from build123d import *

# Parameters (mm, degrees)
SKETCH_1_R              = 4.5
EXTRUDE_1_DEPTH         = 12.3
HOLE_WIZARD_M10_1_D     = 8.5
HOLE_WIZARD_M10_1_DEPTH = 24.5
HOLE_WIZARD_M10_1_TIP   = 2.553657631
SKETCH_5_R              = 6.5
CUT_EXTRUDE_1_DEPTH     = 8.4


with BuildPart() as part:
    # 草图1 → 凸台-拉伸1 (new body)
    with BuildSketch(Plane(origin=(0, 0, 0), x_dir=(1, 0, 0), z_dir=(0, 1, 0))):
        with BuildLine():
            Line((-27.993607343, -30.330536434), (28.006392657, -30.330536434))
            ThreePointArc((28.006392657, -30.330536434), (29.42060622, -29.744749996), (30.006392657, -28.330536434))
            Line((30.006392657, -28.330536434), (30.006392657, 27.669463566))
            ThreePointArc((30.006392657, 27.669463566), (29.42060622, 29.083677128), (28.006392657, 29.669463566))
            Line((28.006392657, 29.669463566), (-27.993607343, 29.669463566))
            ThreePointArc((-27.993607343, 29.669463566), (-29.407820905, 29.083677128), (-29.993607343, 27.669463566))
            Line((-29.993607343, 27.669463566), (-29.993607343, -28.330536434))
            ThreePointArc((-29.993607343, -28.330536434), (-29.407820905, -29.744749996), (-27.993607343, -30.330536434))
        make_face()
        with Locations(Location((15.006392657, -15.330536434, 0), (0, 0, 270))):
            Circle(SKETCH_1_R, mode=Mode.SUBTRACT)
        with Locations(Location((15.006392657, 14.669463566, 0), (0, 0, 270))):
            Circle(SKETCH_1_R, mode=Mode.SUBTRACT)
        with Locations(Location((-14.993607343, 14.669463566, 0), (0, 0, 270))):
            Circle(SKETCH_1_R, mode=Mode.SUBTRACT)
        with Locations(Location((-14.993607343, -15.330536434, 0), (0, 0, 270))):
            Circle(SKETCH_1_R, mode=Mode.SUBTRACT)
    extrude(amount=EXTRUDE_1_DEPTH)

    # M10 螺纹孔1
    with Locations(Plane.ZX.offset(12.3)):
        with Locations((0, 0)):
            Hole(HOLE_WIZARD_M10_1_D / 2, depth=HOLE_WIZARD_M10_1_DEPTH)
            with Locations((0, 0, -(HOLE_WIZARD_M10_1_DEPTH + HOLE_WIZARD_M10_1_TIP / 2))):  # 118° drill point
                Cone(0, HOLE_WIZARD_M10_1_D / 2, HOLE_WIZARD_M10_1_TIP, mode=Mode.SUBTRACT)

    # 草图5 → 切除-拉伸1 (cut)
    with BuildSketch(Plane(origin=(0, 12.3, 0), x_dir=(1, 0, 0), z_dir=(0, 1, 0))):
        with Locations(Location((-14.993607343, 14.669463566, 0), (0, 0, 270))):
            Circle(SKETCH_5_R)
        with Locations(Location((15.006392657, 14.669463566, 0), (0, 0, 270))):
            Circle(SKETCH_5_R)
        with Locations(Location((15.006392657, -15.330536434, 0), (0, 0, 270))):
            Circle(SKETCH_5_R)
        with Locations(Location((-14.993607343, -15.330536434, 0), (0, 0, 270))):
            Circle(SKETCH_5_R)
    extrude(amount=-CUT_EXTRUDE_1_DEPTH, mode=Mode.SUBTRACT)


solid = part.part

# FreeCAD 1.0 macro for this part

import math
import FreeCAD as App
import Part
import Sketcher
Q = App.Units.Quantity

doc = App.newDocument("Part")
body = doc.addObject("PartDesign::Body", "Body")

sketch1 = body.newObject("Sketcher::SketchObject", "Sketch")
sketch1.AttachmentSupport = (doc.getObject("XZ_Plane"), [""])
sketch1.MapMode = "FlatFace"
sketch1.addGeometry([
    Part.LineSegment(App.Vector(-28, 30.3, 0), App.Vector(28, 30.3, 0)),
    Part.ArcOfCircle(Part.Circle(App.Vector(28, 28.3, 0), App.Vector(0, 0, 1), 2), math.radians(0), math.radians(90)),
    Part.LineSegment(App.Vector(30, 28.3, 0), App.Vector(30, -27.7, 0)),
    Part.ArcOfCircle(Part.Circle(App.Vector(28, -27.7, 0), App.Vector(0, 0, 1), 2), math.radians(-90), math.radians(0)),
    Part.LineSegment(App.Vector(28, -29.7, 0), App.Vector(-28, -29.7, 0)),
    Part.ArcOfCircle(Part.Circle(App.Vector(-28, -27.7, 0), App.Vector(0, 0, 1), 2), math.radians(-180), math.radians(-90)),
    Part.LineSegment(App.Vector(-30, -27.7, 0), App.Vector(-30, 28.3, 0)),
    Part.ArcOfCircle(Part.Circle(App.Vector(-28, 28.3, 0), App.Vector(0, 0, 1), 2), math.radians(90), math.radians(180)),
    Part.Circle(App.Vector(-15, 15.3, 0), App.Vector(0, 0, 1), 4.5),
    Part.Circle(App.Vector(15, 15.3, 0), App.Vector(0, 0, 1), 4.5),
    Part.Circle(App.Vector(-15, -14.7, 0), App.Vector(0, 0, 1), 4.5),
    Part.Circle(App.Vector(15, -14.7, 0), App.Vector(0, 0, 1), 4.5),
], False)
sketch1.addConstraint([
    Sketcher.Constraint("Tangent", 0, 2, 1, 2),
    Sketcher.Constraint("Tangent", 1, 1, 2, 1),
    Sketcher.Constraint("Tangent", 2, 2, 3, 2),
    Sketcher.Constraint("Tangent", 3, 1, 4, 1),
    Sketcher.Constraint("Tangent", 4, 2, 5, 2),
    Sketcher.Constraint("Tangent", 5, 1, 6, 1),
    Sketcher.Constraint("Tangent", 6, 2, 7, 2),
    Sketcher.Constraint("Tangent", 7, 1, 0, 1),
    Sketcher.Constraint("Horizontal", 0),
    Sketcher.Constraint("Vertical", 2),
    Sketcher.Constraint("Horizontal", 4),
    Sketcher.Constraint("Vertical", 6),
    Sketcher.Constraint("Equal", 1, 3),
    Sketcher.Constraint("Equal", 3, 5),
    Sketcher.Constraint("Equal", 5, 7),
    Sketcher.Constraint("Equal", 8, 9),
    Sketcher.Constraint("Equal", 9, 10),
    Sketcher.Constraint("Equal", 10, 11),
    Sketcher.Constraint("Horizontal", 8, 3, 9, 3),
    Sketcher.Constraint("Horizontal", 10, 3, 11, 3),
    Sketcher.Constraint("Vertical", 8, 3, 10, 3),
    Sketcher.Constraint("Vertical", 9, 3, 11, 3),
    Sketcher.Constraint("Equal", 4, 2),
    Sketcher.Constraint("Diameter", 8, Q("9 mm")),
    Sketcher.Constraint("Radius", 1, Q("2 mm")),
    Sketcher.Constraint("DistanceX", 0, 1, 0, 2, Q("56 mm")),
    Sketcher.Constraint("DistanceX", 7, 3, 8, 3, Q("13 mm")),
    Sketcher.Constraint("DistanceY", 8, 3, 7, 3, Q("13 mm")),
    Sketcher.Constraint("DistanceX", 9, 3, 1, 3, Q("13 mm")),
    Sketcher.Constraint("DistanceY", 5, 3, 10, 3, Q("13 mm")),
    Sketcher.Constraint("DistanceX", -1, 1, 1, 3, Q("28.006393 mm")),
    Sketcher.Constraint("DistanceY", -1, 1, 1, 3, Q("28.330536 mm")),
])
pad1 = body.newObject("PartDesign::Pad", "Pad")
pad1.Profile = sketch1
pad1.Length = 12.3
pad1.Reversed = True

sketch2 = body.newObject("Sketcher::SketchObject", "Sketch001")
sketch2.AttachmentSupport = (doc.getObject("XZ_Plane"), [""])
sketch2.MapMode = "FlatFace"
sketch2.AttachmentOffset = App.Placement(App.Vector(0, 0, -12.3), App.Rotation())
sketch2.addGeometry(Part.Circle(App.Vector(0, 0, 0), App.Vector(0, 0, 1), 4.2), False)
sketch2.addConstraint([
    Sketcher.Constraint("Coincident", 0, 3, -1, 1),
    Sketcher.Constraint("Diameter", 0, Q("8.5 mm")),
])
doc.recompute()
hole = body.newObject("PartDesign::Hole", "Hole")
hole.Profile = sketch2
hole.ThreadType = "None"
hole.Diameter = 8.5
hole.DepthType = "Dimension"
hole.Depth = 24.5
hole.DrillPoint = "Angled"
hole.DrillPointAngle = 118
hole.Reversed = True

sketch3 = body.newObject("Sketcher::SketchObject", "Sketch002")
sketch3.AttachmentSupport = (doc.getObject("XZ_Plane"), [""])
sketch3.MapMode = "FlatFace"
sketch3.AttachmentOffset = App.Placement(App.Vector(0, 0, -12.3), App.Rotation())
sketch3.addGeometry([
    Part.Circle(App.Vector(-15, -15, 0), App.Vector(0, 0, 1), 6),
    Part.Circle(App.Vector(15, -15, 0), App.Vector(0, 0, 1), 6),
    Part.Circle(App.Vector(15, 15, 0), App.Vector(0, 0, 1), 6),
    Part.Circle(App.Vector(-15, 15, 0), App.Vector(0, 0, 1), 6),
], False)
sketch3.addConstraint([
    Sketcher.Constraint("Equal", 0, 1),
    Sketcher.Constraint("Equal", 1, 2),
    Sketcher.Constraint("Equal", 2, 3),
    Sketcher.Constraint("Horizontal", 0, 3, 1, 3),
    Sketcher.Constraint("Horizontal", 2, 3, 3, 3),
    Sketcher.Constraint("Vertical", 1, 3, 2, 3),
    Sketcher.Constraint("Vertical", 0, 3, 3, 3),
    Sketcher.Constraint("Diameter", 0, Q("13 mm")),
    Sketcher.Constraint("DistanceX", 0, 3, 1, 3, Q("30 mm")),
    Sketcher.Constraint("DistanceY", 1, 3, 2, 3, Q("30 mm")),
    Sketcher.Constraint("DistanceX", 0, 3, -1, 1, Q("14.993607 mm")),
    Sketcher.Constraint("DistanceY", 0, 3, -1, 1, Q("14.669464 mm")),
])
pocket1 = body.newObject("PartDesign::Pocket", "Pocket")
pocket1.Profile = sketch3
pocket1.Length = 8.4
pocket1.Reversed = True

doc.recompute()
